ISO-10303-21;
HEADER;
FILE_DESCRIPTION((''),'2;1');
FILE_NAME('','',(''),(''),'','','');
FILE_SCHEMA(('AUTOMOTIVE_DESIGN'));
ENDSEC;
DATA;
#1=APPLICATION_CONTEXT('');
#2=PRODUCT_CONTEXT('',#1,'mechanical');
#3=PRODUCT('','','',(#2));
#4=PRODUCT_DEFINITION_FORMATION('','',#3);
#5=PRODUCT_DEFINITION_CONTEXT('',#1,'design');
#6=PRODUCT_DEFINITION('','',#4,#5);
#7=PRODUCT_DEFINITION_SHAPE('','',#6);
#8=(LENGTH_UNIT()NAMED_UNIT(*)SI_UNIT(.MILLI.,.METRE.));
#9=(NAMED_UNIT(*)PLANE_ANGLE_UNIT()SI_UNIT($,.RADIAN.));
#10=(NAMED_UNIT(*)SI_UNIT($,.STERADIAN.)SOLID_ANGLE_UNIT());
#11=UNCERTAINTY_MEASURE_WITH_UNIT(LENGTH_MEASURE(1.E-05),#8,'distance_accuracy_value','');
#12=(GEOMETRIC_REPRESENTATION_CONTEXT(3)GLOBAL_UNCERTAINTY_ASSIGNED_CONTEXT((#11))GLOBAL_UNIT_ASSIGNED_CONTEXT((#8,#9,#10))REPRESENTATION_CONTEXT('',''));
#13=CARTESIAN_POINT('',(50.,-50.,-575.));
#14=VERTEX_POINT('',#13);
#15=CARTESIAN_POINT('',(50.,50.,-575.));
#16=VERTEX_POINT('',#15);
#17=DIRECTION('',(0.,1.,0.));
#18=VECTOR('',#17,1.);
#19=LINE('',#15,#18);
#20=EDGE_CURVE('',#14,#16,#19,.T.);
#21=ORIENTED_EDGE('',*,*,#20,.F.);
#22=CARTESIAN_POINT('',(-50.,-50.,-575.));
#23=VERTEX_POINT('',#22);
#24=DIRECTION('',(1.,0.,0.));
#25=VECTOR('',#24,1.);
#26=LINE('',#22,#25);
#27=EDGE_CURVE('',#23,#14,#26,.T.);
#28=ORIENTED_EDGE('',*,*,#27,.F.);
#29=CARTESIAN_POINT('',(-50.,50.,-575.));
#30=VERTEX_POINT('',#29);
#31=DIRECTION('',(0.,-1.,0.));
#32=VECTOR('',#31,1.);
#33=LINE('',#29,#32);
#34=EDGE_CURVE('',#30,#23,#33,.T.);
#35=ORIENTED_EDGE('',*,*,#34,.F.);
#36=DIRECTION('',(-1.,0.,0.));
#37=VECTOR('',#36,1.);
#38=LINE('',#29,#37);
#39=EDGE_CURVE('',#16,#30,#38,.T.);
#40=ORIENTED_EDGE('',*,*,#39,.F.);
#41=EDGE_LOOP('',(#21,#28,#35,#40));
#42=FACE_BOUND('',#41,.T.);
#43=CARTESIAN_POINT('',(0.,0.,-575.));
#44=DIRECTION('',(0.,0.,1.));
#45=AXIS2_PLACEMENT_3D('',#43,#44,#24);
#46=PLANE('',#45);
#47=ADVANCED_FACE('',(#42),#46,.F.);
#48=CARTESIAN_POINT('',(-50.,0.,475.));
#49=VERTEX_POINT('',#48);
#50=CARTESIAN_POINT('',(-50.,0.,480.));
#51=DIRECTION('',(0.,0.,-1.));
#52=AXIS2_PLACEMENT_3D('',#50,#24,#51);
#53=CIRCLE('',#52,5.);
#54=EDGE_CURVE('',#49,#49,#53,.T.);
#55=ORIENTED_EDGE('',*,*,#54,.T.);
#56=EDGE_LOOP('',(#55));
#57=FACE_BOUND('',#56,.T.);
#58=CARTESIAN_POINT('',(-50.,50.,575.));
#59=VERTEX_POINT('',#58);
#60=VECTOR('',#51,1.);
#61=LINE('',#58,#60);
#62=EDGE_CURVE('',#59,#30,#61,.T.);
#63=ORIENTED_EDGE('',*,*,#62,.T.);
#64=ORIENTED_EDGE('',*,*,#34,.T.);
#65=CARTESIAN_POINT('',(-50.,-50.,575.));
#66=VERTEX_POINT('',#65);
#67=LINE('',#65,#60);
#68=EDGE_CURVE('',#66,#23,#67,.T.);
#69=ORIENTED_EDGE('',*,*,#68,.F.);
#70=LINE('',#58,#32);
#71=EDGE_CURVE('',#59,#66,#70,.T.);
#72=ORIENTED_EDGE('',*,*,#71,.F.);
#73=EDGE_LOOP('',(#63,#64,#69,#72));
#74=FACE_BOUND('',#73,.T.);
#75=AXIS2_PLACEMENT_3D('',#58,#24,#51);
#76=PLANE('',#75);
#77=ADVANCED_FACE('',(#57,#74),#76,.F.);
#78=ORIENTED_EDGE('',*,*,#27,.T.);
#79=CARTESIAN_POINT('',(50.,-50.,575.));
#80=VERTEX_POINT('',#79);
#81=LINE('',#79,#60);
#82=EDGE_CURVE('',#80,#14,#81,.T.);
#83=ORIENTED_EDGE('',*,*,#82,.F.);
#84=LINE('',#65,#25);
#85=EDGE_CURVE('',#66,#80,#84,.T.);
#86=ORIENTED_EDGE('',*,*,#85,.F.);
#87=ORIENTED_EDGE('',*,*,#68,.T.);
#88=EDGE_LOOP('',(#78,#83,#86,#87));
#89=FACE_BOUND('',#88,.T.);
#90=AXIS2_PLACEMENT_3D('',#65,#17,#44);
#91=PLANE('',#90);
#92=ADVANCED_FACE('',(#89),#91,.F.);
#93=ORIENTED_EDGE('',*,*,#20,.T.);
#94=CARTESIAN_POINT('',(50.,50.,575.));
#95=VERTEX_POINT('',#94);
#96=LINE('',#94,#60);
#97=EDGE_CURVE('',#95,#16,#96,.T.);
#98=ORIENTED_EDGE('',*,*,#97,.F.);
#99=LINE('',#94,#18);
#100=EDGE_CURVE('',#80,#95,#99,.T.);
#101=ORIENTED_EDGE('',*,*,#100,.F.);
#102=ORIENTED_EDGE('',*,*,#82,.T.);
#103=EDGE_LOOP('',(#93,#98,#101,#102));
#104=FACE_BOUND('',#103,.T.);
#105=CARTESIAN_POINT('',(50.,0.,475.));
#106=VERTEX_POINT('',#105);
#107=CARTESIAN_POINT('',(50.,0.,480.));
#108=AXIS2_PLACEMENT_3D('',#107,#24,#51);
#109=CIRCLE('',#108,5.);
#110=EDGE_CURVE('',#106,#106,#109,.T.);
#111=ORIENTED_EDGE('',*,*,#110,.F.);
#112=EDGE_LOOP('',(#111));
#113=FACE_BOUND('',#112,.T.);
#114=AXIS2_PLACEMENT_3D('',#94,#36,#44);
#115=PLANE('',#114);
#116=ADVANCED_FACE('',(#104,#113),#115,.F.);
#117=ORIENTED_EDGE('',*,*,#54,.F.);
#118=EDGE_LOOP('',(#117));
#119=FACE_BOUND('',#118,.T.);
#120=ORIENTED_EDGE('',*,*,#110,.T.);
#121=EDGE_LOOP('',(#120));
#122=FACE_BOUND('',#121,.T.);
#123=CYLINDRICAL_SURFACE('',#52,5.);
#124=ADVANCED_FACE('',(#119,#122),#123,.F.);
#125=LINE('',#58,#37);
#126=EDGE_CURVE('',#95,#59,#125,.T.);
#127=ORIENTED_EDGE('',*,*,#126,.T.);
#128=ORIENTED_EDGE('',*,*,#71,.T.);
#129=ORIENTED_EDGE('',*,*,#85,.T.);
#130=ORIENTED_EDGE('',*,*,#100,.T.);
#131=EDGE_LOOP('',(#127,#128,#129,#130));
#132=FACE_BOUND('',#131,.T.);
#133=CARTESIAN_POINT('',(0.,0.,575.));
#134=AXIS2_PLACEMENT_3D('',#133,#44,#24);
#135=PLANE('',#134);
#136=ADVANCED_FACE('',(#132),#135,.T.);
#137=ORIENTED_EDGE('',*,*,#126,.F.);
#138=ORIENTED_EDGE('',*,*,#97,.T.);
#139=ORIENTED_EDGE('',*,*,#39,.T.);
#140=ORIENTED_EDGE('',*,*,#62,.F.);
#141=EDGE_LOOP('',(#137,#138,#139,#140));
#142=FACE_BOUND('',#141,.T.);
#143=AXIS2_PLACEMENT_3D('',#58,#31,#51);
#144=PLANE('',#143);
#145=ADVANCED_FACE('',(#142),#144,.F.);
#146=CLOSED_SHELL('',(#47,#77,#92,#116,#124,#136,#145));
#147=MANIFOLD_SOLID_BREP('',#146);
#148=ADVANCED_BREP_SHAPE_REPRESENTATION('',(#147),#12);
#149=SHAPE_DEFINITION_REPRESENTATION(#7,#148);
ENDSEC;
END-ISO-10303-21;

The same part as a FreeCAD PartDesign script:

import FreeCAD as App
import Part
import Sketcher
from FreeCAD import Vector


def add_polygon(sketch, points):
    """Adds a closed chain of lines whose ends are joined by coincident constraints."""
    first, n = sketch.GeometryCount, len(points)
    for a, b in zip(points, points[1:] + points[:1]):
        sketch.addGeometry(Part.LineSegment(App.Vector(*a, 0), App.Vector(*b, 0)), False)
    for i in range(n):
        sketch.addConstraint(Sketcher.Constraint("Coincident", first + i, 2, first + (i + 1) % n, 1))

doc = App.newDocument("Part")
params = doc.addObject("Spreadsheet::Sheet", "Params")
for row, (alias, value) in enumerate([
    ("sketch1_width", "100 mm"),
    ("pad1_length", "1150 mm"),
    ("sketch2_diameter", "10 mm"),
], start=1):
    params.set(f"A{row}", alias)
    params.set(f"B{row}", "=" + value)
    params.setAlias(f"B{row}", alias)

body = doc.addObject("PartDesign::Body", "Body")

# Sketch on XY plane
sketch1 = body.newObject("Sketcher::SketchObject", "Sketch")
sketch1.AttachmentSupport = (doc.getObject("XY_Plane"), [""])
sketch1.MapMode = "FlatFace"
add_polygon(sketch1, [(-50, 50), (-50, -50), (50, -50), (50, 50)])  # lines 0-3
sketch1.addConstraint([
    Sketcher.Constraint("Vertical", 0),
    Sketcher.Constraint("Horizontal", 1),
    Sketcher.Constraint("Vertical", 2),
    Sketcher.Constraint("Horizontal", 3),
    Sketcher.Constraint("Symmetric", 0, 2, 2, 2, -1, 1),
    Sketcher.Constraint("Equal", 3, 0),
    Sketcher.Constraint("DistanceX", 1, 1, 1, 2, 100.0),
])
sketch1.setExpression("Constraints[10]", "Params.sketch1_width")
pad1 = body.newObject("PartDesign::Pad", "Pad")
pad1.Profile = sketch1
pad1.setExpression("Length", "Params.pad1_length")
pad1.Midplane = True

# Sketch on YZ plane
sketch2 = body.newObject("Sketcher::SketchObject", "Sketch001")
sketch2.AttachmentSupport = (doc.getObject("YZ_Plane"), [""])
sketch2.MapMode = "FlatFace"
sketch2.AttachmentOffset = App.Placement(Vector(0, 0, 50), App.Rotation())
sketch2.addGeometry(Part.Circle(Vector(0, 480, 0), Vector(0, 0, 1), 5), False)
sketch2.addConstraint([
    Sketcher.Constraint("PointOnObject", 0, 3, -2),
    Sketcher.Constraint("Diameter", 0, 10.0),
    Sketcher.Constraint("DistanceY", -1, 1, 0, 3, 480.0),
])
sketch2.setExpression("Constraints[1]", "Params.sketch2_diameter")
pocket1 = body.newObject("PartDesign::Pocket", "Pocket")
pocket1.Profile = sketch2
pocket1.Type = "ThroughAll"

doc.recompute()
